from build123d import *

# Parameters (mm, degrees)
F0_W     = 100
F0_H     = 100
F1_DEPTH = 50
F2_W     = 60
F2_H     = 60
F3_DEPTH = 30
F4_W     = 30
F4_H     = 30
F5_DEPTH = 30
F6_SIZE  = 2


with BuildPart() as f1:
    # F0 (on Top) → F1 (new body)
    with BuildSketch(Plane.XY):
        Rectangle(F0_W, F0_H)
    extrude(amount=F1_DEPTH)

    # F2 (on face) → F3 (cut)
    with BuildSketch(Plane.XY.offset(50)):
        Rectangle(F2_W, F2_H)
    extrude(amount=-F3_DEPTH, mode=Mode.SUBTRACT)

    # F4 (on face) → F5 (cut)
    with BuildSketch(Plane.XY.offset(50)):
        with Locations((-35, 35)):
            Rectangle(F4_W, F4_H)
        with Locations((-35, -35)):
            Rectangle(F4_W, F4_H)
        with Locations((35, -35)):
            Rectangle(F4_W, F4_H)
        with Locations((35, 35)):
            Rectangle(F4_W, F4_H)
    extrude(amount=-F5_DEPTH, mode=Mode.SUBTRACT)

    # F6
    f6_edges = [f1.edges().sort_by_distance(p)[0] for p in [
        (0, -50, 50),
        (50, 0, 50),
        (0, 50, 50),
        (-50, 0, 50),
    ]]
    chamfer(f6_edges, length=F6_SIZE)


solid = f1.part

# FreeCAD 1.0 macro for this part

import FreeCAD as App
import Part
import Sketcher
from FreeCAD import Vector
Q = App.Units.Quantity


def edges_at(feature, points):
    """Names of the edges that pass closest to the given points."""
    edges = feature.Shape.Edges
    near = lambda p: min(range(len(edges)), key=lambda i: edges[i].distToShape(Part.Vertex(*p))[0])
    return sorted({f"Edge{near(p) + 1}" for p in points})

doc = App.newDocument("Part")
body = doc.addObject("PartDesign::Body", "Body")

sketch1 = body.newObject("Sketcher::SketchObject", "Sketch")
sketch1.AttachmentSupport = (doc.getObject("XY_Plane"), [""])
sketch1.MapMode = "FlatFace"
sketch1.addGeometry([
    Part.LineSegment(Vector(-50, 50, 0), Vector(-50, -50, 0)),
    Part.LineSegment(Vector(-50, -50, 0), Vector(50, -50, 0)),
    Part.LineSegment(Vector(50, -50, 0), Vector(50, 50, 0)),
    Part.LineSegment(Vector(50, 50, 0), Vector(-50, 50, 0)),
], False)
sketch1.addConstraint([
    Sketcher.Constraint("Coincident", 0, 2, 1, 1),
    Sketcher.Constraint("Coincident", 1, 2, 2, 1),
    Sketcher.Constraint("Coincident", 2, 2, 3, 1),
    Sketcher.Constraint("Coincident", 3, 2, 0, 1),
    Sketcher.Constraint("Vertical", 0),
    Sketcher.Constraint("Horizontal", 1),
    Sketcher.Constraint("Vertical", 2),
    Sketcher.Constraint("Horizontal", 3),
    Sketcher.Constraint("Symmetric", 0, 2, 2, 2, -1, 1),
    Sketcher.Constraint("Equal", 3, 0),
    Sketcher.Constraint("DistanceX", 1, 1, 1, 2, Q("100 mm")),
])
pad1 = body.newObject("PartDesign::Pad", "Pad")
pad1.Profile = sketch1
pad1.Length = 50

sketch2 = body.newObject("Sketcher::SketchObject", "Sketch001")
sketch2.AttachmentSupport = (doc.getObject("XY_Plane"), [""])
sketch2.MapMode = "FlatFace"
sketch2.AttachmentOffset = App.Placement(Vector(0, 0, 50), App.Rotation())
sketch2.addGeometry([
    Part.LineSegment(Vector(-30, 30, 0), Vector(-30, -30, 0)),
    Part.LineSegment(Vector(-30, -30, 0), Vector(30, -30, 0)),
    Part.LineSegment(Vector(30, -30, 0), Vector(30, 30, 0)),
    Part.LineSegment(Vector(30, 30, 0), Vector(-30, 30, 0)),
], False)
sketch2.addConstraint([
    Sketcher.Constraint("Coincident", 0, 2, 1, 1),
    Sketcher.Constraint("Coincident", 1, 2, 2, 1),
    Sketcher.Constraint("Coincident", 2, 2, 3, 1),
    Sketcher.Constraint("Coincident", 3, 2, 0, 1),
    Sketcher.Constraint("Vertical", 0),
    Sketcher.Constraint("Horizontal", 1),
    Sketcher.Constraint("Vertical", 2),
    Sketcher.Constraint("Horizontal", 3),
    Sketcher.Constraint("Symmetric", 0, 2, 2, 2, -1, 1),
    Sketcher.Constraint("Equal", 3, 0),
    Sketcher.Constraint("DistanceX", 1, 1, 1, 2, Q("60 mm")),
])
pocket1 = body.newObject("PartDesign::Pocket", "Pocket")
pocket1.Profile = sketch2
pocket1.Length = 30

sketch3 = body.newObject("Sketcher::SketchObject", "Sketch002")
sketch3.AttachmentSupport = (doc.getObject("XY_Plane"), [""])
sketch3.MapMode = "FlatFace"
sketch3.AttachmentOffset = App.Placement(Vector(0, 0, 50), App.Rotation())
sketch3.addGeometry([
    Part.LineSegment(Vector(-50, 50, 0), Vector(-50, 20, 0)),
    Part.LineSegment(Vector(-50, 20, 0), Vector(-20, 20, 0)),
    Part.LineSegment(Vector(-20, 20, 0), Vector(-20, 50, 0)),
    Part.LineSegment(Vector(-20, 50, 0), Vector(-50, 50, 0)),
    Part.LineSegment(Vector(-50, -20, 0), Vector(-50, -50, 0)),
    Part.LineSegment(Vector(-50, -50, 0), Vector(-20, -50, 0)),
    Part.LineSegment(Vector(-20, -50, 0), Vector(-20, -20, 0)),
    Part.LineSegment(Vector(-20, -20, 0), Vector(-50, -20, 0)),
    Part.LineSegment(Vector(20, -20, 0), Vector(20, -50, 0)),
    Part.LineSegment(Vector(20, -50, 0), Vector(50, -50, 0)),
    Part.LineSegment(Vector(50, -50, 0), Vector(50, -20, 0)),
    Part.LineSegment(Vector(50, -20, 0), Vector(20, -20, 0)),
    Part.LineSegment(Vector(20, 50, 0), Vector(20, 20, 0)),
    Part.LineSegment(Vector(20, 20, 0), Vector(50, 20, 0)),
    Part.LineSegment(Vector(50, 20, 0), Vector(50, 50, 0)),
    Part.LineSegment(Vector(50, 50, 0), Vector(20, 50, 0)),
], False)
sketch3.addConstraint([
    Sketcher.Constraint("Coincident", 0, 2, 1, 1),
    Sketcher.Constraint("Coincident", 1, 2, 2, 1),
    Sketcher.Constraint("Coincident", 2, 2, 3, 1),
    Sketcher.Constraint("Coincident", 3, 2, 0, 1),
    Sketcher.Constraint("Coincident", 4, 2, 5, 1),
    Sketcher.Constraint("Coincident", 5, 2, 6, 1),
    Sketcher.Constraint("Coincident", 6, 2, 7, 1),
    Sketcher.Constraint("Coincident", 7, 2, 4, 1),
    Sketcher.Constraint("Coincident", 8, 2, 9, 1),
    Sketcher.Constraint("Coincident", 9, 2, 10, 1),
    Sketcher.Constraint("Coincident", 10, 2, 11, 1),
    Sketcher.Constraint("Coincident", 11, 2, 8, 1),
    Sketcher.Constraint("Coincident", 12, 2, 13, 1),
    Sketcher.Constraint("Coincident", 13, 2, 14, 1),
    Sketcher.Constraint("Coincident", 14, 2, 15, 1),
    Sketcher.Constraint("Coincident", 15, 2, 12, 1),
    Sketcher.Constraint("Vertical", 0),
    Sketcher.Constraint("Horizontal", 1),
    Sketcher.Constraint("Vertical", 2),
    Sketcher.Constraint("Horizontal", 3),
    Sketcher.Constraint("Vertical", 4),
    Sketcher.Constraint("Horizontal", 5),
    Sketcher.Constraint("Vertical", 6),
    Sketcher.Constraint("Horizontal", 7),
    Sketcher.Constraint("Vertical", 8),
    Sketcher.Constraint("Horizontal", 9),
    Sketcher.Constraint("Vertical", 10),
    Sketcher.Constraint("Horizontal", 11),
    Sketcher.Constraint("Vertical", 12),
    Sketcher.Constraint("Horizontal", 13),
    Sketcher.Constraint("Vertical", 14),
    Sketcher.Constraint("Horizontal", 15),
    Sketcher.Constraint("Symmetric", 2, 2, 8, 2, -1, 1),
    Sketcher.Constraint("Symmetric", 0, 2, 10, 2, -1, 1),
    Sketcher.Constraint("Symmetric", 6, 2, 12, 2, -1, 1),
    Sketcher.Constraint("Symmetric", 4, 2, 14, 2, -1, 1),
    Sketcher.Constraint("Symmetric", 5, 2, 8, 2, -2),
    Sketcher.Constraint("Symmetric", 7, 2, 10, 2, -2),
    Sketcher.Constraint("Equal", 15, 0),
    Sketcher.Constraint("DistanceX", 1, 1, 1, 2, Q("30 mm")),
    Sketcher.Constraint("DistanceX", 0, 2, -1, 1, Q("50 mm")),
    Sketcher.Constraint("DistanceY", -1, 1, 0, 2, Q("20 mm")),
])
pocket2 = body.newObject("PartDesign::Pocket", "Pocket001")
pocket2.Profile = sketch3
pocket2.Length = 30
doc.recompute()

chamfer = body.newObject("PartDesign::Chamfer", "Chamfer")
chamfer.Base = (pocket2, edges_at(pocket2, [
    (0, -50, 50),
    (50, 0, 50),
    (0, 50, 50),
    (-50, 0, 50),
]))
chamfer.Size = 2

doc.recompute()
